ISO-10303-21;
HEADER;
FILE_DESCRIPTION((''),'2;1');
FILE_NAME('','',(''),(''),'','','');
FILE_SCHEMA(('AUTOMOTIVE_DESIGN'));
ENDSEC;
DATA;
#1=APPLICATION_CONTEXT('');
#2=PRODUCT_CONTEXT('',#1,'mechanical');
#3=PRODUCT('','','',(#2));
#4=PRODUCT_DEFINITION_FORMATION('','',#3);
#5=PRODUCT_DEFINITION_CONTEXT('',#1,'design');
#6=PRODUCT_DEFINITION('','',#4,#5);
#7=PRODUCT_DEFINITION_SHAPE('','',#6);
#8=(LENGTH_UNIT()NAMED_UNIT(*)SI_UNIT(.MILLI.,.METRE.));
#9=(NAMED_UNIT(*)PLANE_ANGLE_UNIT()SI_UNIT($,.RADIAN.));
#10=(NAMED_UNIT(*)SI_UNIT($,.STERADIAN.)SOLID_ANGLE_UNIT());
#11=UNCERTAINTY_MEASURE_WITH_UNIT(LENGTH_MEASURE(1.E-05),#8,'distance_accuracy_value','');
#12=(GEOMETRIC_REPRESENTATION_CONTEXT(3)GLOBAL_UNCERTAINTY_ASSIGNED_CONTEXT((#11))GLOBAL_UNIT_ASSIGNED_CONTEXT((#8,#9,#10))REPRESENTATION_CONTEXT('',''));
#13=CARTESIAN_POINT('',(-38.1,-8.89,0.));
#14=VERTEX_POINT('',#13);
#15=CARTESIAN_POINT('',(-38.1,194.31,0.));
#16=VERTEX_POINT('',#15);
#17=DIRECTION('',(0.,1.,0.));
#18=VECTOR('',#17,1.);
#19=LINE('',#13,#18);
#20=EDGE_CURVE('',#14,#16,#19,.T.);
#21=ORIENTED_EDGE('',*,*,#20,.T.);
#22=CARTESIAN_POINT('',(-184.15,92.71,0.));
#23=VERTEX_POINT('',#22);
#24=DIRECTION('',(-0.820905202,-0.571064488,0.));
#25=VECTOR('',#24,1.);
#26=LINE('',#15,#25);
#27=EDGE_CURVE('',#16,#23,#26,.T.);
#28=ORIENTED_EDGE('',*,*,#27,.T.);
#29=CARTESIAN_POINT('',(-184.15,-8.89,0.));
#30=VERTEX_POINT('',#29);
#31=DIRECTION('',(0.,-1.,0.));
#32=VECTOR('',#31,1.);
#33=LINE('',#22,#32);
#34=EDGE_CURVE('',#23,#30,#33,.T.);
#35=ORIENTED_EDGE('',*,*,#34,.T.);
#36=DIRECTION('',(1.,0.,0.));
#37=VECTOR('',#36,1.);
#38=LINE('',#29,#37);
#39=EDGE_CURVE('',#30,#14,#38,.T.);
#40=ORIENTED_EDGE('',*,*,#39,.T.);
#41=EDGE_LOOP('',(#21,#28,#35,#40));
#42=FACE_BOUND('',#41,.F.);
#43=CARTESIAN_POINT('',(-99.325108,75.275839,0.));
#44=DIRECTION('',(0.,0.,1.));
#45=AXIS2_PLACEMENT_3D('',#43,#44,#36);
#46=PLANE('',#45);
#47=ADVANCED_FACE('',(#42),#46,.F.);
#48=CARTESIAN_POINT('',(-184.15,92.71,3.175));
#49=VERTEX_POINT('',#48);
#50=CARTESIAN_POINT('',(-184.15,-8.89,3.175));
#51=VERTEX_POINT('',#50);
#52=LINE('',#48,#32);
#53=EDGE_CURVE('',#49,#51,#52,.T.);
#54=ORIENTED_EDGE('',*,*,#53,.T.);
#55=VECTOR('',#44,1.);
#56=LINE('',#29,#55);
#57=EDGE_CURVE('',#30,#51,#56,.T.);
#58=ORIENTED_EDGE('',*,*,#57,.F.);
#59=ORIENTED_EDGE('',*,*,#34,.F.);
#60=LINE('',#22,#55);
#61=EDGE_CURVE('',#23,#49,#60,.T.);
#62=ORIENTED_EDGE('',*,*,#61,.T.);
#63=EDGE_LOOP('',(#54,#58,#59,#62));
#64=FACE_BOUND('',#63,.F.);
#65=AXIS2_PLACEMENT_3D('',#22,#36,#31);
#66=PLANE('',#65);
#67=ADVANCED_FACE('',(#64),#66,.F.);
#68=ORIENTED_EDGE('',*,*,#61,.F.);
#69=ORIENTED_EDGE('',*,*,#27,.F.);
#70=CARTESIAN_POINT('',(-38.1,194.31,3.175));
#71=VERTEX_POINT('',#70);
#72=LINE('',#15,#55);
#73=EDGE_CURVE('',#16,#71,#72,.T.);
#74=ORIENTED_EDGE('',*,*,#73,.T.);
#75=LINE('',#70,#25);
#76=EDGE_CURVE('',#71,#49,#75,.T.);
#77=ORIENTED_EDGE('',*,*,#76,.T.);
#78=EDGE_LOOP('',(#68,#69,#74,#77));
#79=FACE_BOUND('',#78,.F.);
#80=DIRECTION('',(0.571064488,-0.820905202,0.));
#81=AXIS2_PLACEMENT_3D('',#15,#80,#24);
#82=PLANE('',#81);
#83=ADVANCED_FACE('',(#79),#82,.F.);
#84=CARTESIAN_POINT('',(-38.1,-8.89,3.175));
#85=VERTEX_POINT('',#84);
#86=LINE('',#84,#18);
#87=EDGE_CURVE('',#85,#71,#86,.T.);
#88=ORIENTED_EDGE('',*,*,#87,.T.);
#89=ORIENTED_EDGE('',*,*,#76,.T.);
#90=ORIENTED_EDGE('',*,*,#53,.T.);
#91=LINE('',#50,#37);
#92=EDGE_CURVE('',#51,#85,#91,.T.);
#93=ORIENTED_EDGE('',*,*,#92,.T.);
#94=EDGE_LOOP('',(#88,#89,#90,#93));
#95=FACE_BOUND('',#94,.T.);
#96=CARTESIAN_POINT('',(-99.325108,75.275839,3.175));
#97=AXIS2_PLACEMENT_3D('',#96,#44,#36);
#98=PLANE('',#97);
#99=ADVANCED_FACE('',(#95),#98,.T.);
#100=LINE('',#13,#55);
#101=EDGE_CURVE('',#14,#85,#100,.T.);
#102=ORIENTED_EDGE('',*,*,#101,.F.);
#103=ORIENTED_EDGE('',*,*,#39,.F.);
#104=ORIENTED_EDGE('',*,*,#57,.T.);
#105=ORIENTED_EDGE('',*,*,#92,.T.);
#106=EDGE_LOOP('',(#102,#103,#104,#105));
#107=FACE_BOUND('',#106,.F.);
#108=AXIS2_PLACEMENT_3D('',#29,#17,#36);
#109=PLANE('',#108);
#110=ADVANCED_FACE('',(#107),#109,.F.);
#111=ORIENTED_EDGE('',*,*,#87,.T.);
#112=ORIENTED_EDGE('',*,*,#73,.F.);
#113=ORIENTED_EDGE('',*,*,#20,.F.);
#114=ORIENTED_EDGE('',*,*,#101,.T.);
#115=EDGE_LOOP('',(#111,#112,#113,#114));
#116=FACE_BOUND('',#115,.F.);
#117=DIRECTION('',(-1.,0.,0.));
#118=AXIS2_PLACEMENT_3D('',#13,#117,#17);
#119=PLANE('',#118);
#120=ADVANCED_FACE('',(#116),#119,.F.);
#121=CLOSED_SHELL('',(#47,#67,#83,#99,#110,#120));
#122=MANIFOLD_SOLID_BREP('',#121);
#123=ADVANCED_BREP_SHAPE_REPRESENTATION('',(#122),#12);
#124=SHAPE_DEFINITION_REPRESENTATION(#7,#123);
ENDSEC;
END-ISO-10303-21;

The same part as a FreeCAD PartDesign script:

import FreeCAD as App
import Part
import Sketcher
Q = App.Units.Quantity


def add_polygon(sketch, points):
    """Adds a closed chain of lines whose ends are joined by coincident constraints."""
    first, n = sketch.GeometryCount, len(points)
    for a, b in zip(points, points[1:] + points[:1]):
        sketch.addGeometry(Part.LineSegment(App.Vector(*a, 0), App.Vector(*b, 0)), False)
    for i in range(n):
        sketch.addConstraint(Sketcher.Constraint("Coincident", first + i, 2, first + (i + 1) % n, 1))

doc = App.newDocument("Part")
body = doc.addObject("PartDesign::Body", "Body")

sketch1 = body.newObject("Sketcher::SketchObject", "Sketch")
sketch1.AttachmentSupport = (doc.getObject("XY_Plane"), [""])
sketch1.MapMode = "FlatFace"
add_polygon(sketch1, [(-184, -9), (-38, -9), (-38, 194), (-184, 93)])
sketch1.addConstraint(Sketcher.Constraint("Horizontal", 0))
sketch1.addConstraint(Sketcher.Constraint("Vertical", 1))
sketch1.addConstraint(Sketcher.Constraint("Vertical", 3))
sketch1.addConstraint(Sketcher.Constraint("DistanceY", 1, 1, 1, 2, Q("8 in")))
sketch1.addConstraint(Sketcher.Constraint("DistanceY", 3, 2, 3, 1, Q("4 in")))
sketch1.addConstraint(Sketcher.Constraint("DistanceX", 0, 1, 0, 2, Q("5.75 in")))
sketch1.addConstraint(Sketcher.Constraint("DistanceX", 0, 2, -1, 1, Q("1.5 in")))
sketch1.addConstraint(Sketcher.Constraint("DistanceY", 0, 2, -1, 1, Q("0.35 in")))
pad1 = body.newObject("PartDesign::Pad", "Pad")
pad1.Profile = sketch1
pad1.Length = Q("0.125 in")

doc.recompute()
